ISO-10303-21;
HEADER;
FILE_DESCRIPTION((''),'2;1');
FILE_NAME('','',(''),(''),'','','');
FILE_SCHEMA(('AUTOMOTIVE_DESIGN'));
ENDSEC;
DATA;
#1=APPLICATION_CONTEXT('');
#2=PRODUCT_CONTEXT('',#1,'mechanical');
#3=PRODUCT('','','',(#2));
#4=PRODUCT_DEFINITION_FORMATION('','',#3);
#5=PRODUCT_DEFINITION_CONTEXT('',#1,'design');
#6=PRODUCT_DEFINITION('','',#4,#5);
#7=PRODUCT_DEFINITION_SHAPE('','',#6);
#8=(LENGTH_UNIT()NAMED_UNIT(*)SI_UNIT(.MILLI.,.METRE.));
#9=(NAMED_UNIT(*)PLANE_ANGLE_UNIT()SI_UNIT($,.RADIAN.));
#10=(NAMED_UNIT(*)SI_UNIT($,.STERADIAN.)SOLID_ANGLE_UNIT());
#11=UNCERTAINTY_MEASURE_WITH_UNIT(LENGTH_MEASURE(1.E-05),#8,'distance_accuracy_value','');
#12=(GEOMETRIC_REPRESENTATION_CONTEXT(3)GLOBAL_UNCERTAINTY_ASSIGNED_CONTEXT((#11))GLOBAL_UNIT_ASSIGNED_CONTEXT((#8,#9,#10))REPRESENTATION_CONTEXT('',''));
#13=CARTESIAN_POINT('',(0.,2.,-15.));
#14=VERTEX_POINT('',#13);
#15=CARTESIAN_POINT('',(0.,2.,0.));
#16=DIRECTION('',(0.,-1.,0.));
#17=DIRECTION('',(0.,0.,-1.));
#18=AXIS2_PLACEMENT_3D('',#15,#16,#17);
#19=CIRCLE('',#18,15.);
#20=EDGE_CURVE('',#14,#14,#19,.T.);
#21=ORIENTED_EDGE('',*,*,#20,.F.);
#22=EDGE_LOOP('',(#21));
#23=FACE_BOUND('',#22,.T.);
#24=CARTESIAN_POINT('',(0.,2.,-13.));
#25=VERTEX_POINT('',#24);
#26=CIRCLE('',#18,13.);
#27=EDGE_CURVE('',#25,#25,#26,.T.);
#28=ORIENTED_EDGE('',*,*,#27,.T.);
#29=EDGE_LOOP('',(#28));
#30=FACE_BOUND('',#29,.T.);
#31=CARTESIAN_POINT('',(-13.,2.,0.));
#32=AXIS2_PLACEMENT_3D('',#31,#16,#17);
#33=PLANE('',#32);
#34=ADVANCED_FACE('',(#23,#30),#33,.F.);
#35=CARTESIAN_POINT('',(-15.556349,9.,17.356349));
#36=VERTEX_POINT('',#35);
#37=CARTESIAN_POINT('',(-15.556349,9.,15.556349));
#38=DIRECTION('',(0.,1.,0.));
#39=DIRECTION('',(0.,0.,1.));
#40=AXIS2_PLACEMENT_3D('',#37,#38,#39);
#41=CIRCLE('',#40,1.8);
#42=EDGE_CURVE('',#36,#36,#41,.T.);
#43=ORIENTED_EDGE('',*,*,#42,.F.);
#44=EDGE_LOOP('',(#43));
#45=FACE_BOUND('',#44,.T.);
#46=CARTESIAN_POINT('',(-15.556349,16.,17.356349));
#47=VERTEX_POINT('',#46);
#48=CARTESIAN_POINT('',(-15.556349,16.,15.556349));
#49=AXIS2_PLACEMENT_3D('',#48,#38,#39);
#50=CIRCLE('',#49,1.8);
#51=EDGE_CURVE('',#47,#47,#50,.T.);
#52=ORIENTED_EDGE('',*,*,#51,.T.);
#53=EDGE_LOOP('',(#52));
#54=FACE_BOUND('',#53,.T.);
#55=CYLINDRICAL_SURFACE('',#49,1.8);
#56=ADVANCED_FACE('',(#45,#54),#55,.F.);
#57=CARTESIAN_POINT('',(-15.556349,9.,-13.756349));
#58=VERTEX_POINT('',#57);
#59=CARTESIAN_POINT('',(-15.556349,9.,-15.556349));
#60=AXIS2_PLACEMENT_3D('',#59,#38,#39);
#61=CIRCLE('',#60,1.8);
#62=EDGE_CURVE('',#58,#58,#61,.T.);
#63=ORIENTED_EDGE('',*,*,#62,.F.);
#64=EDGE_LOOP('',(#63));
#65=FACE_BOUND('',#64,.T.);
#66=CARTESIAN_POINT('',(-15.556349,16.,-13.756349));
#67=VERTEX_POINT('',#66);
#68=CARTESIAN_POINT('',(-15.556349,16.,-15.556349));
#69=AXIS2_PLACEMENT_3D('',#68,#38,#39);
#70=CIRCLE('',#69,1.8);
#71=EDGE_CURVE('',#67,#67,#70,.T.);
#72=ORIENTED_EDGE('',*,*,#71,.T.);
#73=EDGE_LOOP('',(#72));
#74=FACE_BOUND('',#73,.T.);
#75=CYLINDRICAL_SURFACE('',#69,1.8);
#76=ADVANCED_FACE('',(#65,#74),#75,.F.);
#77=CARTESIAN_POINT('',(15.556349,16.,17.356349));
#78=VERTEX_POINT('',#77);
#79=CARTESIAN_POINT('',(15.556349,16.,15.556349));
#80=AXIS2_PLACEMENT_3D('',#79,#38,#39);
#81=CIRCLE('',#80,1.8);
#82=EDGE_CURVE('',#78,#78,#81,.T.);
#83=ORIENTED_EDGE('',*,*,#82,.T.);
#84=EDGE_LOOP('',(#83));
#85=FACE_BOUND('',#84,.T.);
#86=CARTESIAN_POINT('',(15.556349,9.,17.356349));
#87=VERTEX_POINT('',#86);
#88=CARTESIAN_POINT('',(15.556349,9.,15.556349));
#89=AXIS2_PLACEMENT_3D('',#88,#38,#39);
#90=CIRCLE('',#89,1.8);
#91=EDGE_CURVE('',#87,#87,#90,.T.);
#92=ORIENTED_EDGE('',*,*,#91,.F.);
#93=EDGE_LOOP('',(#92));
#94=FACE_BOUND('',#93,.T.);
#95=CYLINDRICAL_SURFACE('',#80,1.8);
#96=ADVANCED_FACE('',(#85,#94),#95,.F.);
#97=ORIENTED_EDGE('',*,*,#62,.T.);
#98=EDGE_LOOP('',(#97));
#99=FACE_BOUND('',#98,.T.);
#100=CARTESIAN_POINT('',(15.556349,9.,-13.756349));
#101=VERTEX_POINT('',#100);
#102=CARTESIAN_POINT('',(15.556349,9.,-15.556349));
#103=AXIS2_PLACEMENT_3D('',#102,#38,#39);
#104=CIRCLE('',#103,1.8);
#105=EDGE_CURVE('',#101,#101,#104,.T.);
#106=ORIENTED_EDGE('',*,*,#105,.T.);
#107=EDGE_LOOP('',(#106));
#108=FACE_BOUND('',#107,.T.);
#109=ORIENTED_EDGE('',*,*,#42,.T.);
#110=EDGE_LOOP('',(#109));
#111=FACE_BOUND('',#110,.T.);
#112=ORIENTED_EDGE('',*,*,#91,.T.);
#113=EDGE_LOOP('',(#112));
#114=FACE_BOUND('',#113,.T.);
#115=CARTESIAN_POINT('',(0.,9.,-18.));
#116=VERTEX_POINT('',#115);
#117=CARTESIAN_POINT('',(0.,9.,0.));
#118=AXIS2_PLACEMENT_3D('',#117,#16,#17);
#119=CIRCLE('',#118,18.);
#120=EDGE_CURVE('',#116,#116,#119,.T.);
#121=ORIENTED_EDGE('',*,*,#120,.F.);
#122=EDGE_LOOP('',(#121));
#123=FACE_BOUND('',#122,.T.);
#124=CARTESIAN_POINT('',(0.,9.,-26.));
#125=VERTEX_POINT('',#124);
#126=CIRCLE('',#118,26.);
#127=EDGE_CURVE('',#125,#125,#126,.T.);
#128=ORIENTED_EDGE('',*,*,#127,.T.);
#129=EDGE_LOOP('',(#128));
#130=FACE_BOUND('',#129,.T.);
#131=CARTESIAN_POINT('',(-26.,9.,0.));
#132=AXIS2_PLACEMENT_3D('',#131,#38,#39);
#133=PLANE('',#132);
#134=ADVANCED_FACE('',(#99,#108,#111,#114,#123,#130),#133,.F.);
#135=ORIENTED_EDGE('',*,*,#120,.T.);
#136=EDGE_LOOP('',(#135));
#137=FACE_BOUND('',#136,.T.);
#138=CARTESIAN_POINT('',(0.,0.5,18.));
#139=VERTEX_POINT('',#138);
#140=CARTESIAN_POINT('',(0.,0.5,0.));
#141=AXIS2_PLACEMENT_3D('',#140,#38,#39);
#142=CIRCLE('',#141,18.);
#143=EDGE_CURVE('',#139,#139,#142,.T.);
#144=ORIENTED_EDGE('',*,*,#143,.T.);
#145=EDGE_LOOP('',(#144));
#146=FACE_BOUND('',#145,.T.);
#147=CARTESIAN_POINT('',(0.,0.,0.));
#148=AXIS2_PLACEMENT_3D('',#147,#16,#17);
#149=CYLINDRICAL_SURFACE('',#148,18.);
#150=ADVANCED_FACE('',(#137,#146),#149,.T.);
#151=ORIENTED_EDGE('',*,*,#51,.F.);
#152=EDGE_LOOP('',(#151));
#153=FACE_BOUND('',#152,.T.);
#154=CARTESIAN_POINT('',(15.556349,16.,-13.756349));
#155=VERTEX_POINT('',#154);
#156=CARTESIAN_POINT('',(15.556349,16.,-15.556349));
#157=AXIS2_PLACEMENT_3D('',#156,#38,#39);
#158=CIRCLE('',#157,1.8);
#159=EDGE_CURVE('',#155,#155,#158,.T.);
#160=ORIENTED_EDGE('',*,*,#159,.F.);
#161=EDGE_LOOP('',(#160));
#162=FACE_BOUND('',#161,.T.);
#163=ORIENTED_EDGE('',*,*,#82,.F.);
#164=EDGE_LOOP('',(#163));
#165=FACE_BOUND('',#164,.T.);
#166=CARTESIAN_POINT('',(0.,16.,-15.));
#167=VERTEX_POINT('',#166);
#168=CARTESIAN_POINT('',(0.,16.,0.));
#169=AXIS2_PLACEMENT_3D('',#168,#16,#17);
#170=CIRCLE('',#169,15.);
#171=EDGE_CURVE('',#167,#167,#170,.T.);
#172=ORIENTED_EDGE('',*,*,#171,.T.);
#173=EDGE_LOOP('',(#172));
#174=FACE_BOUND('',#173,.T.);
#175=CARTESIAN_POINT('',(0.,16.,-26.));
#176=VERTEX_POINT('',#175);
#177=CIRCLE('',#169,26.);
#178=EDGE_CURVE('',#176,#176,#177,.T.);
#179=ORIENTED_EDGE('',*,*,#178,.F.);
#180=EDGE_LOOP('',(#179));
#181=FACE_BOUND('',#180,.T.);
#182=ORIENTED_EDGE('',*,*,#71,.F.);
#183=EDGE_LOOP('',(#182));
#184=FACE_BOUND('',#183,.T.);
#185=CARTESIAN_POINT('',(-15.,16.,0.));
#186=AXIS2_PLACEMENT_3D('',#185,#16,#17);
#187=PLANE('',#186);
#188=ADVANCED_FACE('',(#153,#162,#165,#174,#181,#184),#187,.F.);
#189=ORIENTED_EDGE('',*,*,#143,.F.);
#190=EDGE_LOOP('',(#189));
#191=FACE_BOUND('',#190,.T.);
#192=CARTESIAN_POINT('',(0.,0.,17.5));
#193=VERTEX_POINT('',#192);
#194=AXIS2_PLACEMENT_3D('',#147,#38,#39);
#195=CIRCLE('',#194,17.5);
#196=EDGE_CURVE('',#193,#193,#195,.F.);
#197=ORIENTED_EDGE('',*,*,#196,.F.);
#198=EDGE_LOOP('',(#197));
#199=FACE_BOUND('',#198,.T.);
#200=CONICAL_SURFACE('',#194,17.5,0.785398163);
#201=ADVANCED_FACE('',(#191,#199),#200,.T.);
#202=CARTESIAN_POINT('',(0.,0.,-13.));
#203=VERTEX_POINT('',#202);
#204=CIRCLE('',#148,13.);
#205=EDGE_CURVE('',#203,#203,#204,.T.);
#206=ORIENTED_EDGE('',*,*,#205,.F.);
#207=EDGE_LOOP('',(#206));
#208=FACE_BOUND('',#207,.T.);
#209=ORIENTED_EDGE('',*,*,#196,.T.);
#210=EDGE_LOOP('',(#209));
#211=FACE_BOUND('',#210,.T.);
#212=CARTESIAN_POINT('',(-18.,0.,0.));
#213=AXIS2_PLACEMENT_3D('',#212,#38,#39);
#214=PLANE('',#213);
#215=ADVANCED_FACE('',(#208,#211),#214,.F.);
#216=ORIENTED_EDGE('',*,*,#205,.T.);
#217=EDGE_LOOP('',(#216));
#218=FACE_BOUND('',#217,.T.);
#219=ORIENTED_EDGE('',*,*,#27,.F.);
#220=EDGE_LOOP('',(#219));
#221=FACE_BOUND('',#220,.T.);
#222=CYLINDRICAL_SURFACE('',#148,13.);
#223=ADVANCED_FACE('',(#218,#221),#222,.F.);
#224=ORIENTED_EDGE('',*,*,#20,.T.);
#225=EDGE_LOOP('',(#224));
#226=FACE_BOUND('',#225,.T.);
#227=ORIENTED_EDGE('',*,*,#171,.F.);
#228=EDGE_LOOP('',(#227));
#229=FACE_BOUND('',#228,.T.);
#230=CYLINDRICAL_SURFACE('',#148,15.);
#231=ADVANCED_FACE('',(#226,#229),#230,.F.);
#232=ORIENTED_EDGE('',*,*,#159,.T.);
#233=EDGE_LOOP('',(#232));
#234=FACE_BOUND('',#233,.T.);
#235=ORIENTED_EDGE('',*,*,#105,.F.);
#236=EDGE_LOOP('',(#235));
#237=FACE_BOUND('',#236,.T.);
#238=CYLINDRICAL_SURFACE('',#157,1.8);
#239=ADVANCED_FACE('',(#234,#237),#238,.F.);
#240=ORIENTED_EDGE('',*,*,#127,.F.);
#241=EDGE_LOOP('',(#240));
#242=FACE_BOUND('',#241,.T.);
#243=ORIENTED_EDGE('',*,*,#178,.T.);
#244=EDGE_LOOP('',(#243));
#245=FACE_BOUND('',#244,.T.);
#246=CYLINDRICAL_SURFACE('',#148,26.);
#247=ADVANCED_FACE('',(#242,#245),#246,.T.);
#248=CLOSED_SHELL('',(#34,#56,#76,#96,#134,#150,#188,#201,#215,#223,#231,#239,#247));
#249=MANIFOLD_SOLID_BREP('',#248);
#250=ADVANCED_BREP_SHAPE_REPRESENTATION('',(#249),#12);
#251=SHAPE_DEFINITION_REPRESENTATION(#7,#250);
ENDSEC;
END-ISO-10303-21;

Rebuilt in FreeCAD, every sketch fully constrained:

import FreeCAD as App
import Part
import Sketcher
Q = App.Units.Quantity


def edges_at(feature, points):
    """Names of the edges that pass closest to the given points."""
    edges = feature.Shape.Edges
    near = lambda p: min(range(len(edges)), key=lambda i: edges[i].distToShape(Part.Vertex(*p))[0])
    return sorted({f"Edge{near(p) + 1}" for p in points})


def add_polygon(sketch, points):
    """Adds a closed chain of lines whose ends are joined by coincident constraints."""
    first, n = sketch.GeometryCount, len(points)
    for a, b in zip(points, points[1:] + points[:1]):
        sketch.addGeometry(Part.LineSegment(App.Vector(*a, 0), App.Vector(*b, 0)), False)
    for i in range(n):
        sketch.addConstraint(Sketcher.Constraint("Coincident", first + i, 2, first + (i + 1) % n, 1))

doc = App.newDocument("Part")
params = doc.addObject("Spreadsheet::Sheet", "Params")
for row, (alias, value) in enumerate([
    ("sketch1_width", "11 mm"),
    ("sketch1_width2", "8 mm"),
    ("sketch1_width3", "5 mm"),
    ("sketch1_height", "14 mm"),
    ("sketch1_height2", "7 mm"),
    ("revolution_angle", "360 deg"),
    ("chamfer_size", "0.5 mm"),
    ("sketch2_diameter", "3.6 mm"),
    ("hole_diameter", "3.6 mm"),
], start=1):
    params.set(f"A{row}", alias)
    params.set(f"B{row}", "=" + value)
    params.setAlias(f"B{row}", alias)

body = doc.addObject("PartDesign::Body", "Body")

# Sketch on XY plane
sketch1 = body.newObject("Sketcher::SketchObject", "Sketch")
sketch1.AttachmentSupport = (doc.getObject("XY_Plane"), [""])
sketch1.MapMode = "FlatFace"
add_polygon(sketch1, [(-15, 2), (-15, 16), (-26, 16), (-26, 9), (-18, 9), (-18, 0), (-13, 0), (-13, 2)])  # lines 0-7
sketch1.addConstraint([
    Sketcher.Constraint("Vertical", 0),
    Sketcher.Constraint("Horizontal", 1),
    Sketcher.Constraint("Vertical", 2),
    Sketcher.Constraint("Horizontal", 3),
    Sketcher.Constraint("Vertical", 4),
    Sketcher.Constraint("Horizontal", 5),
    Sketcher.Constraint("Vertical", 6),
    Sketcher.Constraint("Horizontal", 7),
    Sketcher.Constraint("PointOnObject", 4, 2, -1),
    Sketcher.Constraint("Equal", 7, 6),
    Sketcher.Constraint("DistanceX", 1, 2, 1, 1, Q("11 mm")),
    Sketcher.Constraint("DistanceX", 3, 1, 3, 2, Q("8 mm")),
    Sketcher.Constraint("DistanceX", 5, 1, 5, 2, Q("5 mm")),
    Sketcher.Constraint("DistanceY", 0, 1, 0, 2, Q("14 mm")),
    Sketcher.Constraint("DistanceY", 2, 2, 2, 1, Q("7 mm")),
    Sketcher.Constraint("DistanceX", 0, 2, -1, 1, Q("15 mm")),
])
sketch1.setExpression("Constraints[18]", "Params.sketch1_width")
sketch1.setExpression("Constraints[19]", "Params.sketch1_width2")
sketch1.setExpression("Constraints[20]", "Params.sketch1_width3")
sketch1.setExpression("Constraints[21]", "Params.sketch1_height")
sketch1.setExpression("Constraints[22]", "Params.sketch1_height2")
revolution = body.newObject("PartDesign::Revolution", "Revolution")
revolution.Profile = sketch1
revolution.ReferenceAxis = (sketch1, ["V_Axis"])
revolution.setExpression("Angle", "Params.revolution_angle")
doc.recompute()

chamfer = body.newObject("PartDesign::Chamfer", "Chamfer")
chamfer.Base = (revolution, edges_at(revolution, [(0, 0, 18)]))
chamfer.setExpression("Size", "Params.chamfer_size")

# Sketch on XZ plane
sketch2 = body.newObject("Sketcher::SketchObject", "Sketch001")
sketch2.AttachmentSupport = (doc.getObject("XZ_Plane"), [""])
sketch2.MapMode = "FlatFace"
sketch2.AttachmentOffset = App.Placement(App.Vector(0, 0, -16), App.Rotation())
sketch2.addGeometry(Part.Circle(App.Vector(15.6, 15.6, 0), App.Vector(0, 0, 1), 1.8), False)
sketch2.addConstraint([
    Sketcher.Constraint("Diameter", 0, Q("3.6 mm")),
    Sketcher.Constraint("DistanceX", -1, 1, 0, 3, Q("15.556349 mm")),
    Sketcher.Constraint("DistanceY", -1, 1, 0, 3, Q("15.556349 mm")),
])
sketch2.setExpression("Constraints[0]", "Params.sketch2_diameter")
doc.recompute()
hole = body.newObject("PartDesign::Hole", "Hole")
hole.Profile = sketch2
hole.ThreadType = "None"
hole.setExpression("Diameter", "Params.hole_diameter")
hole.DepthType = "ThroughAll"
hole.Reversed = True
doc.recompute()

polarpattern = body.newObject("PartDesign::PolarPattern", "PolarPattern")
polarpattern.Originals = [hole]
polarpattern.Axis = (doc.getObject("Y_Axis"), [""])
polarpattern.Angle = 360
polarpattern.Occurrences = 4
body.Tip = polarpattern

doc.recompute()
